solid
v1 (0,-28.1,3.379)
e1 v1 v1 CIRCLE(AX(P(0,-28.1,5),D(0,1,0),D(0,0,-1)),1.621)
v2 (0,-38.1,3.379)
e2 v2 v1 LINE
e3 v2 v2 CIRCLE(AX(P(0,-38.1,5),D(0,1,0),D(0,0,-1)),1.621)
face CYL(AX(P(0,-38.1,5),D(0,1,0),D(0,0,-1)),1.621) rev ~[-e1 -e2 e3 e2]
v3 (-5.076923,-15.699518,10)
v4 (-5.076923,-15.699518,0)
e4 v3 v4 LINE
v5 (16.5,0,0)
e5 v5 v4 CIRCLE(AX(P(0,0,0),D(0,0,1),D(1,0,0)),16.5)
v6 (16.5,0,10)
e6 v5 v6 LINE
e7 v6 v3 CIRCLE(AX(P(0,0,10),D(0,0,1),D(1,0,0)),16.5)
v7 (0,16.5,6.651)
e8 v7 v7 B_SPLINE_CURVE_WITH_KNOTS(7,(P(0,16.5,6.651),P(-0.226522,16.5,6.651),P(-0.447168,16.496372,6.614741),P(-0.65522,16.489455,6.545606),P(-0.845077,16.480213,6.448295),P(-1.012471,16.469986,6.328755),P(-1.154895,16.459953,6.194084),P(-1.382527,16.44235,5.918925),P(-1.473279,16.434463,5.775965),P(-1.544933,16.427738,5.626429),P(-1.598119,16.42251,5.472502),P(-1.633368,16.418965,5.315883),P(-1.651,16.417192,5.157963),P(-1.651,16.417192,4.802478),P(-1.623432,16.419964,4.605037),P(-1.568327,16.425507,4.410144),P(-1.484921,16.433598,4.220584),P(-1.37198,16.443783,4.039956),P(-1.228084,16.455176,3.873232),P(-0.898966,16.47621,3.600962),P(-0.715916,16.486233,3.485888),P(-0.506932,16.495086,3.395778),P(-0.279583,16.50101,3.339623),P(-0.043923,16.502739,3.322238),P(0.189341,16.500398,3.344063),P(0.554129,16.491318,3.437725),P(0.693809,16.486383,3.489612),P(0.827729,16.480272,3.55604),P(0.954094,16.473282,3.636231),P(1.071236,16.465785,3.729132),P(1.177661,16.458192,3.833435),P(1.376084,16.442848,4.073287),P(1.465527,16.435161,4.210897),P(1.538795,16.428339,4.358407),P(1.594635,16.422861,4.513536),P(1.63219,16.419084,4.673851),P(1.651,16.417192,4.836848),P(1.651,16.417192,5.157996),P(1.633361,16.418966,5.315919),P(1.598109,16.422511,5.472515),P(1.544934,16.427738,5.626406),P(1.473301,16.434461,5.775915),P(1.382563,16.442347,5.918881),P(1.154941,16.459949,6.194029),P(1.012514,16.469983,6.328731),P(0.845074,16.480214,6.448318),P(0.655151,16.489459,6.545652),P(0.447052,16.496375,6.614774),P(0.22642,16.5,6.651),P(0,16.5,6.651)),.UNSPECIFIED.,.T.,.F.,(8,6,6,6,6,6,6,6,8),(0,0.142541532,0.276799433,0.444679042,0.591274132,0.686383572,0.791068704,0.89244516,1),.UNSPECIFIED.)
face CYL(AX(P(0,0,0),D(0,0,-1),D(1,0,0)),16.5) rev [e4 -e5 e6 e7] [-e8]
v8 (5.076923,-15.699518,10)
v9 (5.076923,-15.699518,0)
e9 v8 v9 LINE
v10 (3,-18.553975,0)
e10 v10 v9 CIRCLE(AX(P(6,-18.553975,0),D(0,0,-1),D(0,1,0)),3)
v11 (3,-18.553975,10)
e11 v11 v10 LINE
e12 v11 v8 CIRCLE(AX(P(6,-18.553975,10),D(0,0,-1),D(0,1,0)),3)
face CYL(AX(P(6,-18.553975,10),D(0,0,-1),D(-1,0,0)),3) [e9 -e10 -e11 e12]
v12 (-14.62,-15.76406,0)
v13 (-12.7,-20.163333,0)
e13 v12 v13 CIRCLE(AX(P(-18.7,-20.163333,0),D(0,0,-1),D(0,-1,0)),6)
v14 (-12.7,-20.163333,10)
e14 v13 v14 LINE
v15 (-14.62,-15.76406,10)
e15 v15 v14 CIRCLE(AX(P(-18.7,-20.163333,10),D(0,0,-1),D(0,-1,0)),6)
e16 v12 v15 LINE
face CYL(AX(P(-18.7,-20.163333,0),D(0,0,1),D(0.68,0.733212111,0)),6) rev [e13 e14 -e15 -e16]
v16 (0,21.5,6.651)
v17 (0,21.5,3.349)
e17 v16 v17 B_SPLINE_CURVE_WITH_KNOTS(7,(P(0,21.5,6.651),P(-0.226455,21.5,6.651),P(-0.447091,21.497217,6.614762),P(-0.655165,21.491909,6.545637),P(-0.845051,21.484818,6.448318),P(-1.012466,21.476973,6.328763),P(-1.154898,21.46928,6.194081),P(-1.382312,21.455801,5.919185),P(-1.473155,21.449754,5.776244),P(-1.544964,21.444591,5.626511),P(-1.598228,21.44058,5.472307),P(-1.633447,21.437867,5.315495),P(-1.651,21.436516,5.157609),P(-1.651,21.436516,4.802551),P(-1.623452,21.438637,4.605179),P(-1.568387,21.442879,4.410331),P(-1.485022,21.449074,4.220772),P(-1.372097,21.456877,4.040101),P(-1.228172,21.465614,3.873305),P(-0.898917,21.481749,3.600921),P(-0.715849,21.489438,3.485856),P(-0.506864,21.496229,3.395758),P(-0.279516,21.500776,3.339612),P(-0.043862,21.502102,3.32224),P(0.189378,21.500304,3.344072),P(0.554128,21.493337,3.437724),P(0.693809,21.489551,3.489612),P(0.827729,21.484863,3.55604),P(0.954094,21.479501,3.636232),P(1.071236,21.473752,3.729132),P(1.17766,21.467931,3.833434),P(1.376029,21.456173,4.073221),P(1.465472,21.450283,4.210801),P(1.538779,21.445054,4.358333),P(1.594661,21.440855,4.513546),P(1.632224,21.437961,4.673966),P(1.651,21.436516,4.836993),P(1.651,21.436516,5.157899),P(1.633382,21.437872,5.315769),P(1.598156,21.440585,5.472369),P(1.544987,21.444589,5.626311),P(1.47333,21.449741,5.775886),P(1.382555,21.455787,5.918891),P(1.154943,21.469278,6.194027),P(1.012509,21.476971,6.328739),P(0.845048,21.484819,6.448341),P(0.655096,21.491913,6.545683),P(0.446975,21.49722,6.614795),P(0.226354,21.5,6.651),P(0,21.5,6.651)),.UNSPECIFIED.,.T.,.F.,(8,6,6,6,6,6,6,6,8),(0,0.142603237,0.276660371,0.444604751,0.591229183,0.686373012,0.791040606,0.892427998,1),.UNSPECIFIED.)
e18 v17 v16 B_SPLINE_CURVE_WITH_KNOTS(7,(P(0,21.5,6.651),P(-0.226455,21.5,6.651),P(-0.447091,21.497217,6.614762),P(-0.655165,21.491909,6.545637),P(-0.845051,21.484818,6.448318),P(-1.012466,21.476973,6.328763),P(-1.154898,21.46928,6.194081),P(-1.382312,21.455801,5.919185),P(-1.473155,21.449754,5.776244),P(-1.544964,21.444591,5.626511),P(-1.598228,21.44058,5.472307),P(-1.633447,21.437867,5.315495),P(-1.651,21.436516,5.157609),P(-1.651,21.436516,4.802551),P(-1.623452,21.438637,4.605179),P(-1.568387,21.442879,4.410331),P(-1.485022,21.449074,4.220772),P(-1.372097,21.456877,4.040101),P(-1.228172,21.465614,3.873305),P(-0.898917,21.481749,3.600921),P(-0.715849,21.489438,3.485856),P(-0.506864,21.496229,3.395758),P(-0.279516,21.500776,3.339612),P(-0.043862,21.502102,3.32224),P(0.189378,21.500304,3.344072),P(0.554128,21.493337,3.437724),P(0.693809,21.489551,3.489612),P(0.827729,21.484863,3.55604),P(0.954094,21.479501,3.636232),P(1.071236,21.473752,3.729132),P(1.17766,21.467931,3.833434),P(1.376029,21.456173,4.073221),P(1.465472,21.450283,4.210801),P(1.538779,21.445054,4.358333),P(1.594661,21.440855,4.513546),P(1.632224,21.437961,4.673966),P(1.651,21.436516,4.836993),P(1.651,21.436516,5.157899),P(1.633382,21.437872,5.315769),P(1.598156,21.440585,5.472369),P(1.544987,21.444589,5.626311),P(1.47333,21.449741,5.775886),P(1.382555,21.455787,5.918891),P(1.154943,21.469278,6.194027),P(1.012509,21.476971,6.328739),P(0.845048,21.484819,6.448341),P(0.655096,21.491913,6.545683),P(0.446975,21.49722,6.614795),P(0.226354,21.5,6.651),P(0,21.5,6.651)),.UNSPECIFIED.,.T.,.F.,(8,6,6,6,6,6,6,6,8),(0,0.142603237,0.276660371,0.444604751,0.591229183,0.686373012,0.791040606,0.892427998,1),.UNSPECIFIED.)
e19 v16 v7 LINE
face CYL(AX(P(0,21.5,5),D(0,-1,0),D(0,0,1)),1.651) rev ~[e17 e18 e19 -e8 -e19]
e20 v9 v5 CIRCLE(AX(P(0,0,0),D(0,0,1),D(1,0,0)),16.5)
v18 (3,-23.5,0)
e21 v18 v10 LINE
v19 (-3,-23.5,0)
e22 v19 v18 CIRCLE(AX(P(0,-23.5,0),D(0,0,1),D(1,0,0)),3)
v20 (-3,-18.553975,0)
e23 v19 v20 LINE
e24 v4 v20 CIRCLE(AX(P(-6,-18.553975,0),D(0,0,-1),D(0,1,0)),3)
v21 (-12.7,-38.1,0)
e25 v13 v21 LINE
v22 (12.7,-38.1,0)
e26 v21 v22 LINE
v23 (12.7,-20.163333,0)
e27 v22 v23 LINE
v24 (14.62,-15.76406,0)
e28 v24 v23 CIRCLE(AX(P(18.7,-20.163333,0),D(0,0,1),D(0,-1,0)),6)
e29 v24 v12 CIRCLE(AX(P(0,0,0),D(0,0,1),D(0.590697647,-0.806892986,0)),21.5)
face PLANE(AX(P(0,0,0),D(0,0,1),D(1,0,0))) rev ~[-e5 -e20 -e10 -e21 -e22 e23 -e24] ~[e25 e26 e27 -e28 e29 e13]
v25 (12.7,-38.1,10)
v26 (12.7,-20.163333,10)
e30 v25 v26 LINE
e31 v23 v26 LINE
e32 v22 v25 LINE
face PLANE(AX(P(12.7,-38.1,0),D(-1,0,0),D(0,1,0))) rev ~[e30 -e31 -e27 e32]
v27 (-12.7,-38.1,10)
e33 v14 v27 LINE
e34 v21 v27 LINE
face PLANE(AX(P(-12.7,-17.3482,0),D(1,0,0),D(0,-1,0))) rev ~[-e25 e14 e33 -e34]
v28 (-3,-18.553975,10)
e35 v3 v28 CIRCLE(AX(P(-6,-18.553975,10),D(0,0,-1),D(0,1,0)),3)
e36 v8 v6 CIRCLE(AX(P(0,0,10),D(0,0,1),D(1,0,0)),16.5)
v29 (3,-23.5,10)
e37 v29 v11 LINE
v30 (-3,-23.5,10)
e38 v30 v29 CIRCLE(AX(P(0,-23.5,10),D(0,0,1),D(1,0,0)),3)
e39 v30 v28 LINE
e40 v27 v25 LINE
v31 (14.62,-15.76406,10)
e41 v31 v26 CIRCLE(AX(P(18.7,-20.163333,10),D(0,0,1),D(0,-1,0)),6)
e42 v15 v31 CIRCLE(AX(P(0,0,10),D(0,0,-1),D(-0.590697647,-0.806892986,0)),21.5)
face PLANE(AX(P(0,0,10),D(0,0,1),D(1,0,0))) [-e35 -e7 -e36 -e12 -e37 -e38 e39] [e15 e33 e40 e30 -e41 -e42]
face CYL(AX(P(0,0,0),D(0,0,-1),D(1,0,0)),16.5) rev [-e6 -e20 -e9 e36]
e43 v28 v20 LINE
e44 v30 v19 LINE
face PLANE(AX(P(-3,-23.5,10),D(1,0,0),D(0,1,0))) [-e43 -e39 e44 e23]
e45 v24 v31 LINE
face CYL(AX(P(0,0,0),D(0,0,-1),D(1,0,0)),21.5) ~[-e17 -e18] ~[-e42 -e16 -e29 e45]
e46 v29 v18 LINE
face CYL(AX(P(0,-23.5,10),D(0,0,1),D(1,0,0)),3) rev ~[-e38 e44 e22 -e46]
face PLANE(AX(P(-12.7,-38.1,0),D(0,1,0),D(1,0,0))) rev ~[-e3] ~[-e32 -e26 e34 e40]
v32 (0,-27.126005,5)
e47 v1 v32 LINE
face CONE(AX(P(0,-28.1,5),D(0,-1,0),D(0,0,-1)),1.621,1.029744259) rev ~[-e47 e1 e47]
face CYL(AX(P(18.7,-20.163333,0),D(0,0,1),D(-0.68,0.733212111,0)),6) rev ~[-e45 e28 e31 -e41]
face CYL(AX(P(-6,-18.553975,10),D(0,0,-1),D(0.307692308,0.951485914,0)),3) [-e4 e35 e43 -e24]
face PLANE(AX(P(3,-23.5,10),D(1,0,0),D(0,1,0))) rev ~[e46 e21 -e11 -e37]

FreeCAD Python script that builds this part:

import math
import FreeCAD as App
import Part
import Sketcher

V = App.Vector
Q = App.Units.Quantity


def edges_at(feature, points):
    """Names of the edges that pass closest to the given points."""
    edges = feature.Shape.Edges
    near = lambda p: min(range(len(edges)), key=lambda i: edges[i].distToShape(Part.Vertex(*p))[0])
    return sorted({f"Edge{near(p) + 1}" for p in points})

doc = App.newDocument("Part")
body = doc.addObject("PartDesign::Body", "Body")

# Sketch on XY plane
sketch1 = doc.addObject("Sketcher::SketchObject", "Sketch")
body.addObject(sketch1)
sketch1.AttachmentSupport = (doc.XY_Plane, [""])
sketch1.MapMode = "FlatFace"
sketch1.addGeometry([
    Part.ArcOfCircle(Part.Circle(V(0, 0, 0), V(0, 0, 1), 22), math.radians(-54), math.radians(234)),  # 0
    Part.LineSegment(V(-13, -17, 0), V(-13, -38, 0)),  # 1
    Part.LineSegment(V(-13, -38, 0), V(13, -38, 0)),  # 2
    Part.LineSegment(V(13, -38, 0), V(13, -17, 0)),  # 3
    Part.Circle(V(0, 0, 0), V(0, 0, 1), 16),  # 4
], False)
sketch1.addConstraint([
    Sketcher.Constraint("Coincident", 0, 2, 1, 1),
    Sketcher.Constraint("Coincident", 1, 2, 2, 1),
    Sketcher.Constraint("Coincident", 2, 2, 3, 1),
    Sketcher.Constraint("Coincident", 3, 2, 0, 1),
    Sketcher.Constraint("Vertical", 1),
    Sketcher.Constraint("Horizontal", 2),
    Sketcher.Constraint("Vertical", 3),
    Sketcher.Constraint("Coincident", 0, 3, -1, 1),
    Sketcher.Constraint("Coincident", 4, 3, -1, 1),
    Sketcher.Constraint("Horizontal", 0, 2, 3, 2),
    Sketcher.Constraint("Diameter", 4, Q("33 mm")),
    Sketcher.Constraint("Radius", 0, Q("21.5 mm")),
    Sketcher.Constraint("DistanceX", 2, 1, 2, 2, Q("25.4 mm")),
    Sketcher.Constraint("DistanceY", 1, 2, -1, 1, Q("38.1 mm")),
])
pad1 = doc.addObject("PartDesign::Pad", "Pad")
body.addObject(pad1)
pad1.Profile = sketch1
pad1.Length = 10
doc.recompute()

fillet = doc.addObject("PartDesign::Fillet", "Fillet")
body.addObject(fillet)
fillet.Base = (pad1, edges_at(pad1, [(12.7, -17.348, 5), (-12.7, -17.348, 5)]))
fillet.Radius = 6

# Sketch on XZ plane
sketch2 = doc.addObject("Sketcher::SketchObject", "Sketch001")
body.addObject(sketch2)
sketch2.AttachmentSupport = (doc.XZ_Plane, [""])
sketch2.MapMode = "FlatFace"
sketch2.AttachmentOffset = App.Placement(V(0, 0, 38.1), App.Rotation())
sketch2.addGeometry(Part.Circle(V(0, 5, 0), V(0, 0, 1), 1.6), False)
sketch2.addConstraint([
    Sketcher.Constraint("PointOnObject", 0, 3, -2),
    Sketcher.Constraint("Diameter", 0, Q("3.242 mm")),
    Sketcher.Constraint("DistanceY", -1, 1, 0, 3, Q("5 mm")),
])
doc.recompute()
hole = doc.addObject("PartDesign::Hole", "Hole")
body.addObject(hole)
hole.Profile = sketch2
hole.ThreadType = "None"
hole.Diameter = 3.242
hole.DepthType = "Dimension"
hole.Depth = 10
hole.DrillPoint = "Angled"
hole.DrillPointAngle = 118

# Sketch on XZ plane
sketch3 = doc.addObject("Sketcher::SketchObject", "Sketch002")
body.addObject(sketch3)
sketch3.AttachmentSupport = (doc.XZ_Plane, [""])
sketch3.MapMode = "FlatFace"
sketch3.AttachmentOffset = App.Placement(V(0, 0, -21.5), App.Rotation())
sketch3.addGeometry(Part.Circle(V(0, 5, 0), V(0, 0, 1), 1.7), False)
sketch3.addConstraint([
    Sketcher.Constraint("PointOnObject", 0, 3, -2),
    Sketcher.Constraint("Diameter", 0, Q("3.302 mm")),
    Sketcher.Constraint("DistanceY", -1, 1, 0, 3, Q("5 mm")),
])
doc.recompute()
hole2 = doc.addObject("PartDesign::Hole", "Hole001")
body.addObject(hole2)
hole2.Profile = sketch3
hole2.ThreadType = "None"
hole2.Diameter = 3.302
hole2.DepthType = "Dimension"
hole2.Depth = 12.3
hole2.DrillPoint = "Angled"
hole2.DrillPointAngle = 118
hole2.Reversed = True

# Sketch on XY plane
sketch4 = doc.addObject("Sketcher::SketchObject", "Sketch003")
body.addObject(sketch4)
sketch4.AttachmentSupport = (doc.XY_Plane, [""])
sketch4.MapMode = "FlatFace"
sketch4.AttachmentOffset = App.Placement(V(0, 0, 10), App.Rotation())
sketch4.addGeometry([
    Part.ArcOfCircle(Part.Circle(V(0, 0, 0), V(0, 0, 1), 16.5), math.radians(-100), math.radians(-80)),
    Part.LineSegment(V(-3, -16.2, 0), V(-3, -23.5, 0)),
    Part.ArcOfCircle(Part.Circle(V(0, -23.5, 0), V(0, 0, 1), 3), math.radians(180), math.radians(360)),
    Part.LineSegment(V(3, -23.5, 0), V(3, -16.2, 0)),
], False)
sketch4.addConstraint([
    Sketcher.Constraint("Coincident", 0, 1, 1, 1),
    Sketcher.Constraint("Tangent", 1, 2, 2, 1),
    Sketcher.Constraint("Tangent", 2, 2, 3, 1),
    Sketcher.Constraint("Coincident", 3, 2, 0, 2),
    Sketcher.Constraint("Vertical", 1),
    Sketcher.Constraint("Vertical", 3),
    Sketcher.Constraint("Coincident", 0, 3, -1, 1),
    Sketcher.Constraint("PointOnObject", 2, 3, -2),
    Sketcher.Constraint("Radius", 2, Q("3 mm")),
    Sketcher.Constraint("Radius", 0, Q("16.5 mm")),
    Sketcher.Constraint("DistanceY", 2, 3, -1, 1, Q("23.5 mm")),
])
pocket1 = doc.addObject("PartDesign::Pocket", "Pocket")
body.addObject(pocket1)
pocket1.Profile = sketch4
pocket1.Type = "ThroughAll"
doc.recompute()

fillet2 = doc.addObject("PartDesign::Fillet", "Fillet001")
body.addObject(fillet2)
fillet2.Base = (pocket1, edges_at(pocket1, [(-3, -16.225, 5), (3, -16.225, 5)]))
fillet2.Radius = 3

doc.recompute()
